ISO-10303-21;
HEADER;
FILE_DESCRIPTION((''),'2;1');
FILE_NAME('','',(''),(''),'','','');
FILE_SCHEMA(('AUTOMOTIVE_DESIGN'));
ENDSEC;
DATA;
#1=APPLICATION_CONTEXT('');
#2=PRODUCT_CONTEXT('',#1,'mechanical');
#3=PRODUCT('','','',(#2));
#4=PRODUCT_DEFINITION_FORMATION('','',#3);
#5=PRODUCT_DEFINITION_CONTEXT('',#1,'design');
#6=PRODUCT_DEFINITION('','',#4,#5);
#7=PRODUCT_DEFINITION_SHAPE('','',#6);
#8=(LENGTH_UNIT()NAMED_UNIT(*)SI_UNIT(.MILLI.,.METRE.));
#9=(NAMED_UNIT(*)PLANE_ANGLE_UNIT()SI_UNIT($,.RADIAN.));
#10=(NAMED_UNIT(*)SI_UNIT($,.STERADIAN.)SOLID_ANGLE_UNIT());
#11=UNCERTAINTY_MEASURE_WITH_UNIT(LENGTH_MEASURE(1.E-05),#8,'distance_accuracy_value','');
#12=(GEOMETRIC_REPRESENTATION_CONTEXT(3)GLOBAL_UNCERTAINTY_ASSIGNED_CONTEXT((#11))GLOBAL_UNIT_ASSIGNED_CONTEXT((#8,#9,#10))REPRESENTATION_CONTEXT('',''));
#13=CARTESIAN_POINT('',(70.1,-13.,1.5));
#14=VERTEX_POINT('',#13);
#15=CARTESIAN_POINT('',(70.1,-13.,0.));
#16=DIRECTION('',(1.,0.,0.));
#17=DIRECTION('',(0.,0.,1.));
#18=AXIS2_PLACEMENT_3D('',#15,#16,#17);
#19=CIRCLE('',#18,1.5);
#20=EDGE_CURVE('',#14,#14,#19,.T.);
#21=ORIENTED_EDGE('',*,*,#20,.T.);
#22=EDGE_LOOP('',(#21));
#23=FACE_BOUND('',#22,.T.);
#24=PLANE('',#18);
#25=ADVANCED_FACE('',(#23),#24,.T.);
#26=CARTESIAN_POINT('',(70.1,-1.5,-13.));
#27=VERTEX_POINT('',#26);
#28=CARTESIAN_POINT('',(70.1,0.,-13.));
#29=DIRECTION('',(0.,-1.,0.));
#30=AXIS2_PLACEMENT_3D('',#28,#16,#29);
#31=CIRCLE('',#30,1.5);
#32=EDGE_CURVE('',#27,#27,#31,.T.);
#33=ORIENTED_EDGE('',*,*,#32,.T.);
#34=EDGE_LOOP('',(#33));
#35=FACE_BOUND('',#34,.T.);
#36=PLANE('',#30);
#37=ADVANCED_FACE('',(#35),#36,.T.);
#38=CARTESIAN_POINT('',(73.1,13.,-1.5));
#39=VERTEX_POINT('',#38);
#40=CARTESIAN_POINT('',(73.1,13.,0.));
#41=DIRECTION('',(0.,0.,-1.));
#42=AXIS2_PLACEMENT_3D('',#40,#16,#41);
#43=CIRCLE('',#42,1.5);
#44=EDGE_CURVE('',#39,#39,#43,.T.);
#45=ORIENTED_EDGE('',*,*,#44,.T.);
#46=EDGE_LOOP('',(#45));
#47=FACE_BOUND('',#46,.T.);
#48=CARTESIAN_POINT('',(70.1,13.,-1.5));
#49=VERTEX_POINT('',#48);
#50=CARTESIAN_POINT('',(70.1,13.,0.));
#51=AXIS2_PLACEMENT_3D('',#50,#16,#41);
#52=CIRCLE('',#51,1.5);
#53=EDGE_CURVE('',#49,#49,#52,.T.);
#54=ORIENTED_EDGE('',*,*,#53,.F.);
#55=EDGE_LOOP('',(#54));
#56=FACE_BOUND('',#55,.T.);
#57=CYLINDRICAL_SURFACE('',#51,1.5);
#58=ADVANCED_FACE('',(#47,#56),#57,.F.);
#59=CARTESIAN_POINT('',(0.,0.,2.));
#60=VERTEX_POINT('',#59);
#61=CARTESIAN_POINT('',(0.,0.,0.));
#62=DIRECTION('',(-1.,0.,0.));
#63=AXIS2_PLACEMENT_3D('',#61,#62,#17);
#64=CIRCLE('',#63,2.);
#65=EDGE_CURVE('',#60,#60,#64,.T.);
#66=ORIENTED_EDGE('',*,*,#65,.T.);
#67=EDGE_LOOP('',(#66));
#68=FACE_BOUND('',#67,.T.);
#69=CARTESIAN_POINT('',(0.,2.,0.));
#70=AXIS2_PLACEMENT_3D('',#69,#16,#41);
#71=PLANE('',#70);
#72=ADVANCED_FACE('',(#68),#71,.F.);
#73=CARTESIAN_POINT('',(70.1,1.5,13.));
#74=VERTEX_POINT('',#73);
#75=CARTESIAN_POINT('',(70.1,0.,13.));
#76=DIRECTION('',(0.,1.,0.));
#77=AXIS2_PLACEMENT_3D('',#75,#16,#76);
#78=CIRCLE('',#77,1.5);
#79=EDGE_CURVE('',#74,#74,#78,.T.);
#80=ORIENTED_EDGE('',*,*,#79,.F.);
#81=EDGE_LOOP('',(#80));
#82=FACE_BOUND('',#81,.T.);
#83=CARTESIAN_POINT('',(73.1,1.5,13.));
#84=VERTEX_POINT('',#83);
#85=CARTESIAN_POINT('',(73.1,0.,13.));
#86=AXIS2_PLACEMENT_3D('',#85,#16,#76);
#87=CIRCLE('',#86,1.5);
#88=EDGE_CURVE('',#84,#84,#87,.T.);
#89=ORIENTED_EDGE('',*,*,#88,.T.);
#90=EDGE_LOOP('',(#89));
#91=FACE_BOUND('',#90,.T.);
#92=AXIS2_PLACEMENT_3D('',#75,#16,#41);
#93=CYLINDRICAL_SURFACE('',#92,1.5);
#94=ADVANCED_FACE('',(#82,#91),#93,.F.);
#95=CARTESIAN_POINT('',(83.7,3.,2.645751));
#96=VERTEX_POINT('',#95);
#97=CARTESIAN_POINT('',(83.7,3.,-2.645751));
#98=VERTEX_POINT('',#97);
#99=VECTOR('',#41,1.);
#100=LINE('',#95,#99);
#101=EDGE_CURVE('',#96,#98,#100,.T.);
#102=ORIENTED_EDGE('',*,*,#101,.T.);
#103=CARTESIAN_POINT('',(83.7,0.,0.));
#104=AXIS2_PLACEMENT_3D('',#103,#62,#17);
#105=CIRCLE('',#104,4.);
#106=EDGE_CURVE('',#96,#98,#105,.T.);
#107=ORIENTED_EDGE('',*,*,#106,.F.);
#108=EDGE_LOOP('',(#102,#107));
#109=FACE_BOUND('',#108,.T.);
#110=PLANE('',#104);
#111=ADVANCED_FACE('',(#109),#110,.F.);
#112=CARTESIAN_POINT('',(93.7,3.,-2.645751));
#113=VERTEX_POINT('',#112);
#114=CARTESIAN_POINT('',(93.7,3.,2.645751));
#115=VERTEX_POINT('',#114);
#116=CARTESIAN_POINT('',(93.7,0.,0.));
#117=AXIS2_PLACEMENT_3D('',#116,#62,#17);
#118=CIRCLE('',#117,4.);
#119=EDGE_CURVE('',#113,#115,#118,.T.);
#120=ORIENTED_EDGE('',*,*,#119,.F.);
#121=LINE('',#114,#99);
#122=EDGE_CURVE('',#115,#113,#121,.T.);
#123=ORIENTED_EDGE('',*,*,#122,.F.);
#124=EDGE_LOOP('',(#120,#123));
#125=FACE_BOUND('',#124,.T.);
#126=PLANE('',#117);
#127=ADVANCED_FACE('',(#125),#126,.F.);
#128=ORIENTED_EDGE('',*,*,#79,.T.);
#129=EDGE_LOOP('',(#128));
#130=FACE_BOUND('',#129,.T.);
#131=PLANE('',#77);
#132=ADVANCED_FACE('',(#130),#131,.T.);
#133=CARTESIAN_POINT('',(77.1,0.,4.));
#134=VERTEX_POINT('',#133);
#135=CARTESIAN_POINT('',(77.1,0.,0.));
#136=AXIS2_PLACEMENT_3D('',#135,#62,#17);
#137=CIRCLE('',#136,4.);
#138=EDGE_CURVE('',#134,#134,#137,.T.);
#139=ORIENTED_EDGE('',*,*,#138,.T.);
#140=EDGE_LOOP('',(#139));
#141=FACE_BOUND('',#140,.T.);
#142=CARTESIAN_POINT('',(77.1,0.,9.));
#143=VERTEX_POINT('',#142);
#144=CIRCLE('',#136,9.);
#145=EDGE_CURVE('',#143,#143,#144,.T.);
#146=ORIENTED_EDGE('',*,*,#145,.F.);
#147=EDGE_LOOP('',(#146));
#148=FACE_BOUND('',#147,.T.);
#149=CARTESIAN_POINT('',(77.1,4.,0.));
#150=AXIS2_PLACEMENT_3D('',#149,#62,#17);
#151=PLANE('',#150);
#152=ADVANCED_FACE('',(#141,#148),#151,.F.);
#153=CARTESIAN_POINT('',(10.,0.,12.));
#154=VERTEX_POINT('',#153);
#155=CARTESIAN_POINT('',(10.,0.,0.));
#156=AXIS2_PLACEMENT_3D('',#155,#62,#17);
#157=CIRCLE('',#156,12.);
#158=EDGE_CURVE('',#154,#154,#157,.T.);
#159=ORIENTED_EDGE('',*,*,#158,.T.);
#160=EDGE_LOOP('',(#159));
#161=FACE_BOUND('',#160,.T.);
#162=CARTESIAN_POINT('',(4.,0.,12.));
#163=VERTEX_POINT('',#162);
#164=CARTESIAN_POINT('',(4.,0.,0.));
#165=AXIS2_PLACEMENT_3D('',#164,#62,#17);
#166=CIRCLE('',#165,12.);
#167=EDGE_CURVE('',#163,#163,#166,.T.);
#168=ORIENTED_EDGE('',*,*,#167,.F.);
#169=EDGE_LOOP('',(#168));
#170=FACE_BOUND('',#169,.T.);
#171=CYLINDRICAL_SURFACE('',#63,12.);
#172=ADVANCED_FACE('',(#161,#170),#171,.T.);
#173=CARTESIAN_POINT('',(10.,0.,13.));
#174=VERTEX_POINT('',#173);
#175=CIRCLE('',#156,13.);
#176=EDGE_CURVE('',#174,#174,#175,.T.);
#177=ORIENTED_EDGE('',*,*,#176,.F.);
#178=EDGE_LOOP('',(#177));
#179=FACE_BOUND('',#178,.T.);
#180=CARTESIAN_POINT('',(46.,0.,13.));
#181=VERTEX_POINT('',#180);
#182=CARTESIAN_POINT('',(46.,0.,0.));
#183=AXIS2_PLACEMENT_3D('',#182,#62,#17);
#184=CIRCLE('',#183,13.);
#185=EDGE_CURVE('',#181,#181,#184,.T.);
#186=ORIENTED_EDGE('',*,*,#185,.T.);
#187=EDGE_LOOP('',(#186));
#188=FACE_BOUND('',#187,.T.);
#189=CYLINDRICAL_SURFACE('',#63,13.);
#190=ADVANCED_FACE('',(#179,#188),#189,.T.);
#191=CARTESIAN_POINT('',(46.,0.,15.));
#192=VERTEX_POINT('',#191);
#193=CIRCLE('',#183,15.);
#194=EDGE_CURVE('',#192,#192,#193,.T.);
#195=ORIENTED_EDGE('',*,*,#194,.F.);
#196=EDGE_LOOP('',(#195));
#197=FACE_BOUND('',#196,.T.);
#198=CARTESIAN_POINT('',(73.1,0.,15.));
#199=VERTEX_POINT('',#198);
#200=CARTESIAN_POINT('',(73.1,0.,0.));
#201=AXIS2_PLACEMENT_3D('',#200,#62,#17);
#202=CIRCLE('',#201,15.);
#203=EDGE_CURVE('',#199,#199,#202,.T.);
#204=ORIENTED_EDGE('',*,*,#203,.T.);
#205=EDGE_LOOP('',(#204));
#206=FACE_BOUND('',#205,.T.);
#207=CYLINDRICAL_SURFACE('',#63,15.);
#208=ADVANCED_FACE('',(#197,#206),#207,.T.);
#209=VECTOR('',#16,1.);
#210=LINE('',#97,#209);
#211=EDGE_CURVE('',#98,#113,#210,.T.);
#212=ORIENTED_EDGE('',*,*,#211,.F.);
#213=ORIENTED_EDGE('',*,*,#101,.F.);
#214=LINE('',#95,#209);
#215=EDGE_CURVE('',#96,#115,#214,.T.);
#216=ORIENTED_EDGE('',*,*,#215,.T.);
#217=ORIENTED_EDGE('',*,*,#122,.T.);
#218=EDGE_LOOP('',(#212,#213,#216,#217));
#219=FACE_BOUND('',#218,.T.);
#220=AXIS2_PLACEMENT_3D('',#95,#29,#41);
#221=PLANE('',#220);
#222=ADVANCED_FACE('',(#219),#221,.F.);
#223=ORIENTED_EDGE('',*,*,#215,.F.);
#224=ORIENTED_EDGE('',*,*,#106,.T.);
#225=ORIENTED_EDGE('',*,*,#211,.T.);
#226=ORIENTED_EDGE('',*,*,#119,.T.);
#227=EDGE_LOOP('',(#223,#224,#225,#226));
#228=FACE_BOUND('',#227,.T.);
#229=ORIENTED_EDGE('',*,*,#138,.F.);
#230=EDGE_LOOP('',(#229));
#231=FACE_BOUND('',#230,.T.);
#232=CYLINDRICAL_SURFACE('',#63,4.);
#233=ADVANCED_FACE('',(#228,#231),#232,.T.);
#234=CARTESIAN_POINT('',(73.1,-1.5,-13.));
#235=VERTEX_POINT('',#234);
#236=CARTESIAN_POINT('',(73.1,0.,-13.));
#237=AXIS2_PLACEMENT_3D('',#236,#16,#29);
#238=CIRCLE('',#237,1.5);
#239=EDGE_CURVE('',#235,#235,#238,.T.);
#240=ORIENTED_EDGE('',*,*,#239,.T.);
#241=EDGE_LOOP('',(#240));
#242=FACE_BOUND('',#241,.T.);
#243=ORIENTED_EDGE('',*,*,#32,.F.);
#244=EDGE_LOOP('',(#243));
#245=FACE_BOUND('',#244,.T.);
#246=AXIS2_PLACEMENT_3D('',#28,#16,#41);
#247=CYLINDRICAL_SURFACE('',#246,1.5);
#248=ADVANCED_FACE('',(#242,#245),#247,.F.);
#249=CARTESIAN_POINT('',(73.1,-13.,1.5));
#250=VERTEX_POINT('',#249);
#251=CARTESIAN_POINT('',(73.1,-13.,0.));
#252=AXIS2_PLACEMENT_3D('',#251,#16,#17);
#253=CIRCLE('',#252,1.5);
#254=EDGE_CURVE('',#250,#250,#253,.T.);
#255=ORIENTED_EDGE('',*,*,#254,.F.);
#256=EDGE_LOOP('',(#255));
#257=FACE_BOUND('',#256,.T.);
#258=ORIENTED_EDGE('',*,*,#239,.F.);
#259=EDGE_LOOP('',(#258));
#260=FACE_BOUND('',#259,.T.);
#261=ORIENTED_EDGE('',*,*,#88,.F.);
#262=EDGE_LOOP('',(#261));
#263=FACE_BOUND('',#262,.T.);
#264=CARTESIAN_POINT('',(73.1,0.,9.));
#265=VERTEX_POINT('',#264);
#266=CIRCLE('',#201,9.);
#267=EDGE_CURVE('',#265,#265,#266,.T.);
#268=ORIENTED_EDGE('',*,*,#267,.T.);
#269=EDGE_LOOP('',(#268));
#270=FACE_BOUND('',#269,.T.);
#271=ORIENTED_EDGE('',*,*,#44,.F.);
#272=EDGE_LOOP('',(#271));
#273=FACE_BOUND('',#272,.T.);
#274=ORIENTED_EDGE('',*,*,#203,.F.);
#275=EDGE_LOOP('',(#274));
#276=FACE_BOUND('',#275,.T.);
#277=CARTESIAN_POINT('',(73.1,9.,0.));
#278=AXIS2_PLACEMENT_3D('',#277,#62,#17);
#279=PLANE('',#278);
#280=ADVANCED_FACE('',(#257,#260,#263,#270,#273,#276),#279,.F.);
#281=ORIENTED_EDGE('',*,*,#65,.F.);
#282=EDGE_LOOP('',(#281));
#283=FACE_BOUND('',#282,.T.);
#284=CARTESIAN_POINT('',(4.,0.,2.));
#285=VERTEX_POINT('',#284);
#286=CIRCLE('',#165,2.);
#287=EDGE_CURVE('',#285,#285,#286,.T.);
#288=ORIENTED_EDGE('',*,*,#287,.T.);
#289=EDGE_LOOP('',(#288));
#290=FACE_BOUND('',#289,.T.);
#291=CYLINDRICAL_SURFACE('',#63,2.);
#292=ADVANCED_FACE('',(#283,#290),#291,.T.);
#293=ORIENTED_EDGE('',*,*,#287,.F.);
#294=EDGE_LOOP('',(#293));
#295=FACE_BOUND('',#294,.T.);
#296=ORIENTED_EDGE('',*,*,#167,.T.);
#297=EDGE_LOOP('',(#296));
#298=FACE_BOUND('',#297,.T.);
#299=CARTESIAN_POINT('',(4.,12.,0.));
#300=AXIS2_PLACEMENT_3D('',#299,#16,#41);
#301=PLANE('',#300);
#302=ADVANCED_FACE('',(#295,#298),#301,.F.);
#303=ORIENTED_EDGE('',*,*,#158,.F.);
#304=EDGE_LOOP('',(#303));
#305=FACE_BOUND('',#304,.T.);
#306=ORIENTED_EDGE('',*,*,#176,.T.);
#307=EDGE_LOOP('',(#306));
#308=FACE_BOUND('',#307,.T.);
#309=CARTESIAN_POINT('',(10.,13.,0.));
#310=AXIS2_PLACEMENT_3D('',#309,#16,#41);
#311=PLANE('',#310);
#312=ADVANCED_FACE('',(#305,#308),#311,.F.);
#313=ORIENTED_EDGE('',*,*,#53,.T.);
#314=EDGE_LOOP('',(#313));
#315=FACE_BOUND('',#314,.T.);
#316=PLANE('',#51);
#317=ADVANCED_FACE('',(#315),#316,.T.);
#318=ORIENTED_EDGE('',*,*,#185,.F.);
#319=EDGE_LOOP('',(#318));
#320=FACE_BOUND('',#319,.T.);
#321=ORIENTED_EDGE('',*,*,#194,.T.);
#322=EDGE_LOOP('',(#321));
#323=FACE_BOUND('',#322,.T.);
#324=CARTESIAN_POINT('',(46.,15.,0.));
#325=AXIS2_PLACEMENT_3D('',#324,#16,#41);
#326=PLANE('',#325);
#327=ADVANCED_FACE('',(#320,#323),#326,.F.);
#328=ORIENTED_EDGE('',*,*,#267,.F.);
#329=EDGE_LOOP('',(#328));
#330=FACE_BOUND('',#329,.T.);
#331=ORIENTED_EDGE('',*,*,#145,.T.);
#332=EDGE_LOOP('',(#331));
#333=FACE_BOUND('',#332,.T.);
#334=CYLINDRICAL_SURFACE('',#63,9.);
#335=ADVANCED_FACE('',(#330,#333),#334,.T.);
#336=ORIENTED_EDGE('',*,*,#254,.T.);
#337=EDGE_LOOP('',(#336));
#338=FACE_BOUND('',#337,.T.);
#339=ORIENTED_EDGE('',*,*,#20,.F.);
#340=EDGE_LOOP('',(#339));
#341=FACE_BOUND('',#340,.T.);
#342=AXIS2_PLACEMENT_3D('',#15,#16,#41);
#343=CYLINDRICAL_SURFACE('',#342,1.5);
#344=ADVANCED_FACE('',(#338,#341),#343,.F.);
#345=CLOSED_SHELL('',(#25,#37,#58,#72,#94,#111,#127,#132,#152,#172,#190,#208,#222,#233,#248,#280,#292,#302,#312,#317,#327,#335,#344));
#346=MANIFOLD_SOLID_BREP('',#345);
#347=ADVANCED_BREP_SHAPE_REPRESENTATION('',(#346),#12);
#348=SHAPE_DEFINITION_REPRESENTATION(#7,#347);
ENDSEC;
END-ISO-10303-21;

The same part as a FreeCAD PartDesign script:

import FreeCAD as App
import Part
import Sketcher

V = App.Vector


def add_polygon(sketch, points):
    """Adds a closed chain of lines whose ends are joined by coincident constraints."""
    first, n = sketch.GeometryCount, len(points)
    for a, b in zip(points, points[1:] + points[:1]):
        sketch.addGeometry(Part.LineSegment(App.Vector(*a, 0), App.Vector(*b, 0)), False)
    for i in range(n):
        sketch.addConstraint(Sketcher.Constraint("Coincident", first + i, 2, first + (i + 1) % n, 1))

doc = App.newDocument("Part")
body = doc.addObject("PartDesign::Body", "Body")

# Sketch on XY plane
sketch1 = body.newObject("Sketcher::SketchObject", "Sketch")
sketch1.AttachmentSupport = (doc.getObject("XY_Plane"), [""])
sketch1.MapMode = "FlatFace"
add_polygon(sketch1, [(0, 0), (93.7, 0), (93.7, 4), (77.1, 4), (77.1, 9), (73.1, 9), (73.1, 15), (46, 15), (46, 13), (10, 13), (10, 12), (4, 12), (4, 2), (0, 2)])  # lines 0-13
sketch1.addConstraint(Sketcher.Constraint("Horizontal", 0))
sketch1.addConstraint(Sketcher.Constraint("Vertical", 1))
sketch1.addConstraint(Sketcher.Constraint("Horizontal", 2))
sketch1.addConstraint(Sketcher.Constraint("Vertical", 3))
sketch1.addConstraint(Sketcher.Constraint("Horizontal", 4))
sketch1.addConstraint(Sketcher.Constraint("Vertical", 5))
sketch1.addConstraint(Sketcher.Constraint("Horizontal", 6))
sketch1.addConstraint(Sketcher.Constraint("Vertical", 7))
sketch1.addConstraint(Sketcher.Constraint("Horizontal", 8))
sketch1.addConstraint(Sketcher.Constraint("Vertical", 9))
sketch1.addConstraint(Sketcher.Constraint("Horizontal", 10))
sketch1.addConstraint(Sketcher.Constraint("Vertical", 11))
sketch1.addConstraint(Sketcher.Constraint("Horizontal", 12))
sketch1.addConstraint(Sketcher.Constraint("Vertical", 13))
sketch1.addConstraint(Sketcher.Constraint("Coincident", 13, 2, -1, 1))
sketch1.addConstraint(Sketcher.Constraint("Equal", 4, 12))
sketch1.addConstraint(Sketcher.Constraint("Equal", 12, 1))
sketch1.addConstraint(Sketcher.Constraint("Equal", 10, 5))
sketch1.addConstraint(Sketcher.Constraint("Equal", 7, 13))
sketch1.addConstraint(Sketcher.Constraint("DistanceX", 4, 2, 4, 1, 4.0))
sketch1.addConstraint(Sketcher.Constraint("DistanceX", 8, 2, 8, 1, 36.0))
sketch1.addConstraint(Sketcher.Constraint("DistanceX", 10, 2, 10, 1, 6.0))
sketch1.addConstraint(Sketcher.Constraint("DistanceY", 3, 1, 3, 2, 5.0))
sketch1.addConstraint(Sketcher.Constraint("DistanceY", 7, 2, 7, 1, 2.0))
sketch1.addConstraint(Sketcher.Constraint("DistanceY", 9, 2, 9, 1, 1.0))
sketch1.addConstraint(Sketcher.Constraint("DistanceX", 0, 1, 0, 2, 93.7))
sketch1.addConstraint(Sketcher.Constraint("DistanceX", 2, 2, 2, 1, 16.6))
revolution = body.newObject("PartDesign::Revolution", "Revolution")
revolution.Profile = sketch1
revolution.ReferenceAxis = (sketch1, ["H_Axis"])
revolution.Angle = 360

# Sketch on YZ plane
sketch2 = body.newObject("Sketcher::SketchObject", "Sketch001")
sketch2.AttachmentSupport = (doc.getObject("YZ_Plane"), [""])
sketch2.MapMode = "FlatFace"
sketch2.AttachmentOffset = App.Placement(V(0, 0, 93.7), App.Rotation())
add_polygon(sketch2, [(4, 2.6), (3, 2.6), (3, -2.6), (4, -2.6)])  # lines 0-3
sketch2.addConstraint(Sketcher.Constraint("Horizontal", 0))
sketch2.addConstraint(Sketcher.Constraint("Vertical", 1))
sketch2.addConstraint(Sketcher.Constraint("Horizontal", 2))
sketch2.addConstraint(Sketcher.Constraint("Vertical", 3))
sketch2.addConstraint(Sketcher.Constraint("DistanceX", 0, 2, 0, 1, 1.0))
sketch2.addConstraint(Sketcher.Constraint("DistanceX", -1, 1, 0, 2, 3.0))
sketch2.addConstraint(Sketcher.Constraint("DistanceY", 1, 2, 1, 1, 5.291503))
sketch2.addConstraint(Sketcher.Constraint("DistanceY", -1, 1, 0, 2, 2.645751))
pocket1 = body.newObject("PartDesign::Pocket", "Pocket")
pocket1.Profile = sketch2
pocket1.Length = 10

# Sketch on YZ plane
sketch3 = body.newObject("Sketcher::SketchObject", "Sketch002")
sketch3.AttachmentSupport = (doc.getObject("YZ_Plane"), [""])
sketch3.MapMode = "FlatFace"
sketch3.AttachmentOffset = App.Placement(V(0, 0, 73.1), App.Rotation())
sketch3.addGeometry(Part.Circle(V(13, 0, 0), V(0, 0, 1), 1.5), False)
sketch3.addConstraint(Sketcher.Constraint("PointOnObject", 0, 3, -1))
sketch3.addConstraint(Sketcher.Constraint("Diameter", 0, 3.0))
sketch3.addConstraint(Sketcher.Constraint("DistanceX", -1, 1, 0, 3, 13.0))
pocket2 = body.newObject("PartDesign::Pocket", "Pocket001")
pocket2.Profile = sketch3
pocket2.Length = 3
doc.recompute()

polarpattern = body.newObject("PartDesign::PolarPattern", "PolarPattern")
polarpattern.Originals = [pocket2]
polarpattern.Axis = (doc.getObject("X_Axis"), [""])
polarpattern.Angle = 360
polarpattern.Occurrences = 4
body.Tip = polarpattern

doc.recompute()
